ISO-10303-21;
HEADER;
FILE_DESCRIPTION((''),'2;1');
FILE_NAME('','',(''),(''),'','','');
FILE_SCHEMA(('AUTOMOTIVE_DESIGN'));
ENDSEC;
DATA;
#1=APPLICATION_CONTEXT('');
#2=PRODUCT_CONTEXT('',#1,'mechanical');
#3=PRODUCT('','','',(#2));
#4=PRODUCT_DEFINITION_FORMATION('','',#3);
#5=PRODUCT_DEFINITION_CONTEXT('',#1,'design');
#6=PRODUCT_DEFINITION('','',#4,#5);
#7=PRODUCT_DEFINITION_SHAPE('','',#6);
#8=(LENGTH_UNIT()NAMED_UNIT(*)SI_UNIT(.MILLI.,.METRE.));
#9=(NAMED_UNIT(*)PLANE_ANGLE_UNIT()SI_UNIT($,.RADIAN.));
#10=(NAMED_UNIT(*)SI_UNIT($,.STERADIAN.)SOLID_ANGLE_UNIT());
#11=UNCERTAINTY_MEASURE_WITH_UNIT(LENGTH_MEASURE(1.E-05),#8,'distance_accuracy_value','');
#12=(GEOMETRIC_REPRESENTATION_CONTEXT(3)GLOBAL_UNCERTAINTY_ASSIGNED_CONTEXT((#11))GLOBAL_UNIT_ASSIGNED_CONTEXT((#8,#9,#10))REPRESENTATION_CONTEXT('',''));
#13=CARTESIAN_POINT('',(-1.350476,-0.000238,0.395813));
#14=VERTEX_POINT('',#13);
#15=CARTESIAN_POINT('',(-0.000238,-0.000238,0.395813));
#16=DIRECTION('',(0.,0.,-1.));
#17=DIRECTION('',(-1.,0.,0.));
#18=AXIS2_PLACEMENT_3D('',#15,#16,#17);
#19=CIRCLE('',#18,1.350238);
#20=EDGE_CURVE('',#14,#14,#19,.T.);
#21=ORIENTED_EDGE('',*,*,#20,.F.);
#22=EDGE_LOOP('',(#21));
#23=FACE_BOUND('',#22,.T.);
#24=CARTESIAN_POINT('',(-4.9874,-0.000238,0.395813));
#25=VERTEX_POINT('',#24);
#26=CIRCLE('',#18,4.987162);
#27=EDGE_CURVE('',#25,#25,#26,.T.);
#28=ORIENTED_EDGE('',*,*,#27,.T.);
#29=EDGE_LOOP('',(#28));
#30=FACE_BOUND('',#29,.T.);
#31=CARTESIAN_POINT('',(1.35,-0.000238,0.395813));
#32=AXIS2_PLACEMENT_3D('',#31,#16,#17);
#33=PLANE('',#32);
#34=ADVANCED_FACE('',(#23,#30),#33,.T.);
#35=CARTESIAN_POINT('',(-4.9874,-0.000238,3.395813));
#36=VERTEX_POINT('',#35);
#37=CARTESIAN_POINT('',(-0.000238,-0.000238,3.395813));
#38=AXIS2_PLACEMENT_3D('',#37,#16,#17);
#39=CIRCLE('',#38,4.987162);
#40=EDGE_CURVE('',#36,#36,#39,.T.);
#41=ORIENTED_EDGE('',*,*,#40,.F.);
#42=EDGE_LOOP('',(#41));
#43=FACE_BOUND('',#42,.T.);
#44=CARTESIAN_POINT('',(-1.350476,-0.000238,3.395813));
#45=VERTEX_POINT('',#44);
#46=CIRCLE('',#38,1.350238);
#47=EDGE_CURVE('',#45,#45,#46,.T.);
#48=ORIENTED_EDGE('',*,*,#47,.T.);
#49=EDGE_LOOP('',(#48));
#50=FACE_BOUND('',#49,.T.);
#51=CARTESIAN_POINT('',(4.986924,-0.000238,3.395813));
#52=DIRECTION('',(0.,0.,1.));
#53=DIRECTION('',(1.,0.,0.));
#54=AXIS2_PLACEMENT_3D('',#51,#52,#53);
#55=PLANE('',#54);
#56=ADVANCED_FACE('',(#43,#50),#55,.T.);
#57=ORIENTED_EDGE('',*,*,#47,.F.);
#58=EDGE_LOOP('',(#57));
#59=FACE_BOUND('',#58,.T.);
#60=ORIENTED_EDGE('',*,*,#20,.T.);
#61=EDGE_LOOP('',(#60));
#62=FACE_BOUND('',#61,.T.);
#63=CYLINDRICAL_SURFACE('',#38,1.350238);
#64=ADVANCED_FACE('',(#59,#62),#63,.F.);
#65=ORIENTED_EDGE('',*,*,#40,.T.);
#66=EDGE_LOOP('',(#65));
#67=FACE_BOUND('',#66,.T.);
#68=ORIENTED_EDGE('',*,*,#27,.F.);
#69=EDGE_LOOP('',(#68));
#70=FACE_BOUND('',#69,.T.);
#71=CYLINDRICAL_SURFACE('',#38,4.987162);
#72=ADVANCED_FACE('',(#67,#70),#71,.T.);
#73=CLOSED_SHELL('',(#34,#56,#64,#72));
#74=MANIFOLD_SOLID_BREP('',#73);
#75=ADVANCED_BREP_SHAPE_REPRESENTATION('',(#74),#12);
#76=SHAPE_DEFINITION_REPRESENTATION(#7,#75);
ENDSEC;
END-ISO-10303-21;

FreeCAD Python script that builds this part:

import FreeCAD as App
import Part
import Sketcher

V = App.Vector
Q = App.Units.Quantity

doc = App.newDocument("Part")
params = doc.addObject("Spreadsheet::Sheet", "Params")
for row, (alias, value) in enumerate([
    ("sketch1_height", "3 mm"),
    ("revolution_angle", "360 deg"),
], start=1):
    params.set(f"A{row}", alias)
    params.set(f"B{row}", "=" + value)
    params.setAlias(f"B{row}", alias)

body = doc.addObject("PartDesign::Body", "Body")

# Sketch on XZ plane
sketch1 = body.newObject("Sketcher::SketchObject", "Sketch")
sketch1.AttachmentSupport = (doc.getObject("XZ_Plane"), [""])
sketch1.MapMode = "FlatFace"
sketch1.AttachmentOffset = App.Placement(V(0, 0, 0.000238), App.Rotation())
sketch1.addGeometry(Part.LineSegment(V(1.35, 3.395813, 0), V(1.35, 0.395813, 0)), False)
sketch1.addGeometry(Part.LineSegment(V(1.35, 0.395813, 0), V(4.986924, 0.395813, 0)), False)
sketch1.addGeometry(Part.LineSegment(V(4.986924, 0.395813, 0), V(4.986924, 3.395813, 0)), False)
sketch1.addGeometry(Part.LineSegment(V(4.986924, 3.395813, 0), V(1.35, 3.395813, 0)), False)
sketch1.addGeometry(Part.LineSegment(V(-0.000238, 3.395813, 0), V(-0.000238, 0.395813, 0)), True)  # axis
sketch1.addConstraint(Sketcher.Constraint("Coincident", 0, 2, 1, 1))
sketch1.addConstraint(Sketcher.Constraint("Coincident", 1, 2, 2, 1))
sketch1.addConstraint(Sketcher.Constraint("Coincident", 2, 2, 3, 1))
sketch1.addConstraint(Sketcher.Constraint("Coincident", 3, 2, 0, 1))
sketch1.addConstraint(Sketcher.Constraint("Vertical", 0))
sketch1.addConstraint(Sketcher.Constraint("Horizontal", 1))
sketch1.addConstraint(Sketcher.Constraint("Vertical", 2))
sketch1.addConstraint(Sketcher.Constraint("Horizontal", 3))
sketch1.addConstraint(Sketcher.Constraint("Vertical", 4))
sketch1.addConstraint(Sketcher.Constraint("Horizontal", 3, 2, 4, 1))
sketch1.addConstraint(Sketcher.Constraint("Horizontal", 1, 2, 4, 2))
sketch1.addConstraint(Sketcher.Constraint("DistanceY", 0, 2, 0, 1, Q("3 mm")))
sketch1.addConstraint(Sketcher.Constraint("DistanceX", -1, 1, 0, 2, Q("1.35 mm")))
sketch1.addConstraint(Sketcher.Constraint("DistanceX", 1, 1, 1, 2, Q("3.636924 mm")))
sketch1.addConstraint(Sketcher.Constraint("DistanceY", -1, 1, 0, 2, Q("0.395813 mm")))
sketch1.addConstraint(Sketcher.Constraint("DistanceX", 4, 1, -1, 1, Q("0.000238 mm")))
sketch1.setExpression("Constraints[11]", "Params.sketch1_height")
revolution = body.newObject("PartDesign::Revolution", "Revolution")
revolution.Profile = sketch1
revolution.ReferenceAxis = (sketch1, ["Axis0"])
revolution.setExpression("Angle", "Params.revolution_angle")

doc.recompute()
